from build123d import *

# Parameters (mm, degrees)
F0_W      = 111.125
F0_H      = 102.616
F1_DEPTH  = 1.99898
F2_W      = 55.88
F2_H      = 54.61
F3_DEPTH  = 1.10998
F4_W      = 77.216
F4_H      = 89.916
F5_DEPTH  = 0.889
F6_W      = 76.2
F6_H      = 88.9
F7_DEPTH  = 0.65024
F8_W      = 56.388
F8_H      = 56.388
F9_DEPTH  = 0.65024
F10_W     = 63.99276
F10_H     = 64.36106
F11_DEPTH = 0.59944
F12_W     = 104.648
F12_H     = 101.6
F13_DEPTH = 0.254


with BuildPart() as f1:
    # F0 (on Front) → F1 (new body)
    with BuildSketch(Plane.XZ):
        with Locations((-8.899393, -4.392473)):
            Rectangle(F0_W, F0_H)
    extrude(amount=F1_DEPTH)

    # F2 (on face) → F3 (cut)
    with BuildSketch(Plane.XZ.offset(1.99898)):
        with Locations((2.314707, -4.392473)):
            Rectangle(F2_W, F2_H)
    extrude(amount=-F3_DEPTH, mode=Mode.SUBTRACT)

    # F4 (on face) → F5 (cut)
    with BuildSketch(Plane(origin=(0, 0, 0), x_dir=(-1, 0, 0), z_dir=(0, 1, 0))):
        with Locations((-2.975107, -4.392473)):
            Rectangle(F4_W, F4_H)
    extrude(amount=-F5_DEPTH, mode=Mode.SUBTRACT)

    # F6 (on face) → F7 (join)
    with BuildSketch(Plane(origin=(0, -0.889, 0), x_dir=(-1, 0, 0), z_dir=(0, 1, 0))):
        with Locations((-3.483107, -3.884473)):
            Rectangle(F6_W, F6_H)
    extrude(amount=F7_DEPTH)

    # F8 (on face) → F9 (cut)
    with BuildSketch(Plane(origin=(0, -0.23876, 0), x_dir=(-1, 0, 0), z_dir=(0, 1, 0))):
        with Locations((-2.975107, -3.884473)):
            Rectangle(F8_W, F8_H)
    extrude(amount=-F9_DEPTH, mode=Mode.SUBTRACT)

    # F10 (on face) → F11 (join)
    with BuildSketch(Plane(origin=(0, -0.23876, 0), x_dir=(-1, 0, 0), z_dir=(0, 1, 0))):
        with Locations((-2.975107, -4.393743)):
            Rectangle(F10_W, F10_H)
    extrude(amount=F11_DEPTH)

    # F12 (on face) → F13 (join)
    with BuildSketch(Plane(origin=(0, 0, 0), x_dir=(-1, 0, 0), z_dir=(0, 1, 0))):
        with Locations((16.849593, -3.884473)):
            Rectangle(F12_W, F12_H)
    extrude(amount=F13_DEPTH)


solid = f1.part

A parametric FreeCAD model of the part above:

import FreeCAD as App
import Part
import Sketcher

V = App.Vector
Q = App.Units.Quantity

doc = App.newDocument("Part")
body = doc.addObject("PartDesign::Body", "Body")

# Sketch on XZ plane
sketch1 = body.newObject("Sketcher::SketchObject", "Sketch")
sketch1.AttachmentSupport = (doc.getObject("XZ_Plane"), [""])
sketch1.MapMode = "FlatFace"
sketch1.addGeometry(Part.LineSegment(V(-64, 47, 0), V(-64, -56, 0)), False)
sketch1.addGeometry(Part.LineSegment(V(-64, -56, 0), V(47, -56, 0)), False)
sketch1.addGeometry(Part.LineSegment(V(47, -56, 0), V(47, 47, 0)), False)
sketch1.addGeometry(Part.LineSegment(V(47, 47, 0), V(-64, 47, 0)), False)
sketch1.addConstraint(Sketcher.Constraint("Coincident", 0, 2, 1, 1))
sketch1.addConstraint(Sketcher.Constraint("Coincident", 1, 2, 2, 1))
sketch1.addConstraint(Sketcher.Constraint("Coincident", 2, 2, 3, 1))
sketch1.addConstraint(Sketcher.Constraint("Coincident", 3, 2, 0, 1))
sketch1.addConstraint(Sketcher.Constraint("Vertical", 0))
sketch1.addConstraint(Sketcher.Constraint("Horizontal", 1))
sketch1.addConstraint(Sketcher.Constraint("Vertical", 2))
sketch1.addConstraint(Sketcher.Constraint("Horizontal", 3))
sketch1.addConstraint(Sketcher.Constraint("DistanceY", 0, 2, 0, 1, Q("4.04 in")))
sketch1.addConstraint(Sketcher.Constraint("DistanceX", 1, 1, 1, 2, Q("4.375 in")))
sketch1.addConstraint(Sketcher.Constraint("DistanceX", 0, 2, -1, 1, Q("64.461893 mm")))
sketch1.addConstraint(Sketcher.Constraint("DistanceY", 0, 2, -1, 1, Q("55.700473 mm")))
pad1 = body.newObject("PartDesign::Pad", "Pad")
pad1.Profile = sketch1
pad1.Length = Q("0.0787 in")

# Sketch on XZ plane
sketch2 = body.newObject("Sketcher::SketchObject", "Sketch001")
sketch2.AttachmentSupport = (doc.getObject("XZ_Plane"), [""])
sketch2.MapMode = "FlatFace"
sketch2.AttachmentOffset = App.Placement(V(0, 0, 0.0787 * 25.4), App.Rotation())
sketch2.addGeometry(Part.LineSegment(V(-26, 23, 0), V(-26, -32, 0)), False)
sketch2.addGeometry(Part.LineSegment(V(-26, -32, 0), V(30, -32, 0)), False)
sketch2.addGeometry(Part.LineSegment(V(30, -32, 0), V(30, 23, 0)), False)
sketch2.addGeometry(Part.LineSegment(V(30, 23, 0), V(-26, 23, 0)), False)
sketch2.addConstraint(Sketcher.Constraint("Coincident", 0, 2, 1, 1))
sketch2.addConstraint(Sketcher.Constraint("Coincident", 1, 2, 2, 1))
sketch2.addConstraint(Sketcher.Constraint("Coincident", 2, 2, 3, 1))
sketch2.addConstraint(Sketcher.Constraint("Coincident", 3, 2, 0, 1))
sketch2.addConstraint(Sketcher.Constraint("Vertical", 0))
sketch2.addConstraint(Sketcher.Constraint("Horizontal", 1))
sketch2.addConstraint(Sketcher.Constraint("Vertical", 2))
sketch2.addConstraint(Sketcher.Constraint("Horizontal", 3))
sketch2.addConstraint(Sketcher.Constraint("DistanceX", 1, 1, 1, 2, Q("2.2 in")))
sketch2.addConstraint(Sketcher.Constraint("DistanceY", 0, 2, 0, 1, Q("2.15 in")))
sketch2.addConstraint(Sketcher.Constraint("DistanceX", 0, 2, -1, 1, Q("25.625293 mm")))
sketch2.addConstraint(Sketcher.Constraint("DistanceY", 0, 2, -1, 1, Q("31.697473 mm")))
pocket1 = body.newObject("PartDesign::Pocket", "Pocket")
pocket1.Profile = sketch2
pocket1.Length = Q("0.0437 in")

# Sketch on XZ plane
sketch3 = body.newObject("Sketcher::SketchObject", "Sketch002")
sketch3.AttachmentSupport = (doc.getObject("XZ_Plane"), [""])
sketch3.MapMode = "FlatFace"
sketch3.addGeometry(Part.LineSegment(V(42, 41, 0), V(42, -49, 0)), False)
sketch3.addGeometry(Part.LineSegment(V(42, -49, 0), V(-36, -49, 0)), False)
sketch3.addGeometry(Part.LineSegment(V(-36, -49, 0), V(-36, 41, 0)), False)
sketch3.addGeometry(Part.LineSegment(V(-36, 41, 0), V(42, 41, 0)), False)
sketch3.addConstraint(Sketcher.Constraint("Coincident", 0, 2, 1, 1))
sketch3.addConstraint(Sketcher.Constraint("Coincident", 1, 2, 2, 1))
sketch3.addConstraint(Sketcher.Constraint("Coincident", 2, 2, 3, 1))
sketch3.addConstraint(Sketcher.Constraint("Coincident", 3, 2, 0, 1))
sketch3.addConstraint(Sketcher.Constraint("Vertical", 0))
sketch3.addConstraint(Sketcher.Constraint("Horizontal", 1))
sketch3.addConstraint(Sketcher.Constraint("Vertical", 2))
sketch3.addConstraint(Sketcher.Constraint("Horizontal", 3))
sketch3.addConstraint(Sketcher.Constraint("DistanceX", 1, 2, 1, 1, Q("3.04 in")))
sketch3.addConstraint(Sketcher.Constraint("DistanceY", 0, 2, 0, 1, Q("3.54 in")))
sketch3.addConstraint(Sketcher.Constraint("DistanceX", -1, 1, 0, 2, Q("41.583107 mm")))
sketch3.addConstraint(Sketcher.Constraint("DistanceY", 0, 2, -1, 1, Q("49.350473 mm")))
pocket2 = body.newObject("PartDesign::Pocket", "Pocket001")
pocket2.Profile = sketch3
pocket2.Length = Q("0.035 in")
pocket2.Reversed = True

# Sketch on XZ plane
sketch4 = body.newObject("Sketcher::SketchObject", "Sketch003")
sketch4.AttachmentSupport = (doc.getObject("XZ_Plane"), [""])
sketch4.MapMode = "FlatFace"
sketch4.AttachmentOffset = App.Placement(V(0, 0, 0.035 * 25.4), App.Rotation())
sketch4.addGeometry(Part.LineSegment(V(42, 41, 0), V(42, -48, 0)), False)
sketch4.addGeometry(Part.LineSegment(V(42, -48, 0), V(-35, -48, 0)), False)
sketch4.addGeometry(Part.LineSegment(V(-35, -48, 0), V(-35, 41, 0)), False)
sketch4.addGeometry(Part.LineSegment(V(-35, 41, 0), V(42, 41, 0)), False)
sketch4.addConstraint(Sketcher.Constraint("Coincident", 0, 2, 1, 1))
sketch4.addConstraint(Sketcher.Constraint("Coincident", 1, 2, 2, 1))
sketch4.addConstraint(Sketcher.Constraint("Coincident", 2, 2, 3, 1))
sketch4.addConstraint(Sketcher.Constraint("Coincident", 3, 2, 0, 1))
sketch4.addConstraint(Sketcher.Constraint("Vertical", 0))
sketch4.addConstraint(Sketcher.Constraint("Horizontal", 1))
sketch4.addConstraint(Sketcher.Constraint("Vertical", 2))
sketch4.addConstraint(Sketcher.Constraint("Horizontal", 3))
sketch4.addConstraint(Sketcher.Constraint("DistanceX", 1, 2, 1, 1, Q("3 in")))
sketch4.addConstraint(Sketcher.Constraint("DistanceY", 0, 2, 0, 1, Q("3.5 in")))
sketch4.addConstraint(Sketcher.Constraint("DistanceX", -1, 1, 0, 2, Q("41.583107 mm")))
sketch4.addConstraint(Sketcher.Constraint("DistanceY", 0, 2, -1, 1, Q("48.334473 mm")))
pad2 = body.newObject("PartDesign::Pad", "Pad001")
pad2.Profile = sketch4
pad2.Length = Q("0.0256 in")
pad2.Reversed = True

# Sketch on XZ plane
sketch5 = body.newObject("Sketcher::SketchObject", "Sketch004")
sketch5.AttachmentSupport = (doc.getObject("XZ_Plane"), [""])
sketch5.MapMode = "FlatFace"
sketch5.AttachmentOffset = App.Placement(V(0, 0, 0.0094 * 25.4), App.Rotation())
sketch5.addGeometry(Part.LineSegment(V(31, 24, 0), V(31, -32, 0)), False)
sketch5.addGeometry(Part.LineSegment(V(31, -32, 0), V(-25, -32, 0)), False)
sketch5.addGeometry(Part.LineSegment(V(-25, -32, 0), V(-25, 24, 0)), False)
sketch5.addGeometry(Part.LineSegment(V(-25, 24, 0), V(31, 24, 0)), False)
sketch5.addConstraint(Sketcher.Constraint("Coincident", 0, 2, 1, 1))
sketch5.addConstraint(Sketcher.Constraint("Coincident", 1, 2, 2, 1))
sketch5.addConstraint(Sketcher.Constraint("Coincident", 2, 2, 3, 1))
sketch5.addConstraint(Sketcher.Constraint("Coincident", 3, 2, 0, 1))
sketch5.addConstraint(Sketcher.Constraint("Vertical", 0))
sketch5.addConstraint(Sketcher.Constraint("Horizontal", 1))
sketch5.addConstraint(Sketcher.Constraint("Vertical", 2))
sketch5.addConstraint(Sketcher.Constraint("Horizontal", 3))
sketch5.addConstraint(Sketcher.Constraint("Equal", 3, 0))
sketch5.addConstraint(Sketcher.Constraint("DistanceX", 1, 2, 1, 1, Q("2.22 in")))
sketch5.addConstraint(Sketcher.Constraint("DistanceX", -1, 1, 0, 2, Q("31.169107 mm")))
sketch5.addConstraint(Sketcher.Constraint("DistanceY", 0, 2, -1, 1, Q("32.078473 mm")))
pocket3 = body.newObject("PartDesign::Pocket", "Pocket002")
pocket3.Profile = sketch5
pocket3.Length = Q("0.0256 in")
pocket3.Reversed = True

# Sketch on XZ plane
sketch6 = body.newObject("Sketcher::SketchObject", "Sketch005")
sketch6.AttachmentSupport = (doc.getObject("XZ_Plane"), [""])
sketch6.MapMode = "FlatFace"
sketch6.AttachmentOffset = App.Placement(V(0, 0, 0.0094 * 25.4), App.Rotation())
sketch6.addGeometry(Part.LineSegment(V(35, 28, 0), V(35, -37, 0)), False)
sketch6.addGeometry(Part.LineSegment(V(35, -37, 0), V(-29, -37, 0)), False)
sketch6.addGeometry(Part.LineSegment(V(-29, -37, 0), V(-29, 28, 0)), False)
sketch6.addGeometry(Part.LineSegment(V(-29, 28, 0), V(35, 28, 0)), False)
sketch6.addConstraint(Sketcher.Constraint("Coincident", 0, 2, 1, 1))
sketch6.addConstraint(Sketcher.Constraint("Coincident", 1, 2, 2, 1))
sketch6.addConstraint(Sketcher.Constraint("Coincident", 2, 2, 3, 1))
sketch6.addConstraint(Sketcher.Constraint("Coincident", 3, 2, 0, 1))
sketch6.addConstraint(Sketcher.Constraint("Vertical", 0))
sketch6.addConstraint(Sketcher.Constraint("Horizontal", 1))
sketch6.addConstraint(Sketcher.Constraint("Vertical", 2))
sketch6.addConstraint(Sketcher.Constraint("Horizontal", 3))
sketch6.addConstraint(Sketcher.Constraint("DistanceX", 1, 2, 1, 1, Q("2.5194 in")))
sketch6.addConstraint(Sketcher.Constraint("DistanceY", 0, 2, 0, 1, Q("2.5339 in")))
sketch6.addConstraint(Sketcher.Constraint("DistanceX", -1, 1, 0, 2, Q("34.971487 mm")))
sketch6.addConstraint(Sketcher.Constraint("DistanceY", 0, 2, -1, 1, Q("36.574273 mm")))
pad3 = body.newObject("PartDesign::Pad", "Pad002")
pad3.Profile = sketch6
pad3.Length = Q("0.0236 in")
pad3.Reversed = True

# Sketch on XZ plane
sketch7 = body.newObject("Sketcher::SketchObject", "Sketch006")
sketch7.AttachmentSupport = (doc.getObject("XZ_Plane"), [""])
sketch7.MapMode = "FlatFace"
sketch7.addGeometry(Part.LineSegment(V(35, 47, 0), V(35, -55, 0)), False)
sketch7.addGeometry(Part.LineSegment(V(35, -55, 0), V(-69, -55, 0)), False)
sketch7.addGeometry(Part.LineSegment(V(-69, -55, 0), V(-69, 47, 0)), False)
sketch7.addGeometry(Part.LineSegment(V(-69, 47, 0), V(35, 47, 0)), False)
sketch7.addConstraint(Sketcher.Constraint("Coincident", 0, 2, 1, 1))
sketch7.addConstraint(Sketcher.Constraint("Coincident", 1, 2, 2, 1))
sketch7.addConstraint(Sketcher.Constraint("Coincident", 2, 2, 3, 1))
sketch7.addConstraint(Sketcher.Constraint("Coincident", 3, 2, 0, 1))
sketch7.addConstraint(Sketcher.Constraint("Vertical", 0))
sketch7.addConstraint(Sketcher.Constraint("Horizontal", 1))
sketch7.addConstraint(Sketcher.Constraint("Vertical", 2))
sketch7.addConstraint(Sketcher.Constraint("Horizontal", 3))
sketch7.addConstraint(Sketcher.Constraint("DistanceY", 0, 2, 0, 1, Q("4 in")))
sketch7.addConstraint(Sketcher.Constraint("DistanceX", 1, 2, 1, 1, Q("4.12 in")))
sketch7.addConstraint(Sketcher.Constraint("DistanceX", -1, 1, 0, 2, Q("35.474407 mm")))
sketch7.addConstraint(Sketcher.Constraint("DistanceY", 0, 2, -1, 1, Q("54.684473 mm")))
pad4 = body.newObject("PartDesign::Pad", "Pad003")
pad4.Profile = sketch7
pad4.Length = Q("0.01 in")
pad4.Reversed = True

doc.recompute()
